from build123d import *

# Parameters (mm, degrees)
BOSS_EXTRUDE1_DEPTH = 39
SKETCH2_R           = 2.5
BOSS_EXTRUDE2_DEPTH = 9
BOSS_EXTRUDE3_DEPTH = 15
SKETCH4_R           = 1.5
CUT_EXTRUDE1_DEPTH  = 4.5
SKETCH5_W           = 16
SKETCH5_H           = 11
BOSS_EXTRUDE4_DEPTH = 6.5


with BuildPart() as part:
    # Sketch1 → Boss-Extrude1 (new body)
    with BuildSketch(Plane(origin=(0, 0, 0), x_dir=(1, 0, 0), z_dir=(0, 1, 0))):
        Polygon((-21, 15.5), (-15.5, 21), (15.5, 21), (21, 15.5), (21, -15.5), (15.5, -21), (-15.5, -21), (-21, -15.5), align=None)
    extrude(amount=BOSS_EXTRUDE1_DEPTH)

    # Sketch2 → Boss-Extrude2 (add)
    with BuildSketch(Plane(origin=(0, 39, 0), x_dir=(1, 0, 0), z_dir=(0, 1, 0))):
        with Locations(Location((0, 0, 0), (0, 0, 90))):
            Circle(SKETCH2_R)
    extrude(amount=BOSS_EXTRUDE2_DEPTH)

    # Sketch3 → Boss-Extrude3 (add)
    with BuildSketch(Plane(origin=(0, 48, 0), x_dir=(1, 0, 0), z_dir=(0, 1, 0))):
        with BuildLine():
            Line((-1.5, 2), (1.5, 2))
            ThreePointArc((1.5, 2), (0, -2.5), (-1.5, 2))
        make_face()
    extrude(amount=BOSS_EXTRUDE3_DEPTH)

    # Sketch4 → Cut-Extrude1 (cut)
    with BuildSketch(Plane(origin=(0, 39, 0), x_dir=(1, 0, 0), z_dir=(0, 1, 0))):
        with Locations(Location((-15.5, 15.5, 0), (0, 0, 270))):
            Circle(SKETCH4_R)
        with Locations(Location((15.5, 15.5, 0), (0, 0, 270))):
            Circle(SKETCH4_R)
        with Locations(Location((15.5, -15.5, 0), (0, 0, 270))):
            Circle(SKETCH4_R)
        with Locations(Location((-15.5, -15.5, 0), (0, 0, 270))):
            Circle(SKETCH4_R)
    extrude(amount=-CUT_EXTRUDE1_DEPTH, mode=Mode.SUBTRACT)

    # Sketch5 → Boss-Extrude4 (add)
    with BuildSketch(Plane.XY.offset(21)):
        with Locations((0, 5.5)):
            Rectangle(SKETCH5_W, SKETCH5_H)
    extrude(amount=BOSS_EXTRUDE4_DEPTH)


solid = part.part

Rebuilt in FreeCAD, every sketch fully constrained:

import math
import FreeCAD as App
import Part
import Sketcher

V = App.Vector
Q = App.Units.Quantity

doc = App.newDocument("Part")
body = doc.addObject("PartDesign::Body", "Body")

# Sketch on XZ plane
sketch1 = body.newObject("Sketcher::SketchObject", "Sketch")
sketch1.AttachmentSupport = (doc.getObject("XZ_Plane"), [""])
sketch1.MapMode = "FlatFace"
sketch1.addGeometry(Part.LineSegment(V(-15.5, -21, 0), V(-21, -15.5, 0)), False)
sketch1.addGeometry(Part.LineSegment(V(-21, -15.5, 0), V(-21, 15.5, 0)), False)
sketch1.addGeometry(Part.LineSegment(V(-21, 15.5, 0), V(-15.5, 21, 0)), False)
sketch1.addGeometry(Part.LineSegment(V(-15.5, 21, 0), V(15.5, 21, 0)), False)
sketch1.addGeometry(Part.LineSegment(V(15.5, 21, 0), V(21, 15.5, 0)), False)
sketch1.addGeometry(Part.LineSegment(V(21, 15.5, 0), V(21, -15.5, 0)), False)
sketch1.addGeometry(Part.LineSegment(V(21, -15.5, 0), V(15.5, -21, 0)), False)
sketch1.addGeometry(Part.LineSegment(V(15.5, -21, 0), V(-15.5, -21, 0)), False)
sketch1.addConstraint(Sketcher.Constraint("Coincident", 0, 2, 1, 1))
sketch1.addConstraint(Sketcher.Constraint("Coincident", 1, 2, 2, 1))
sketch1.addConstraint(Sketcher.Constraint("Coincident", 2, 2, 3, 1))
sketch1.addConstraint(Sketcher.Constraint("Coincident", 3, 2, 4, 1))
sketch1.addConstraint(Sketcher.Constraint("Coincident", 4, 2, 5, 1))
sketch1.addConstraint(Sketcher.Constraint("Coincident", 5, 2, 6, 1))
sketch1.addConstraint(Sketcher.Constraint("Coincident", 6, 2, 7, 1))
sketch1.addConstraint(Sketcher.Constraint("Coincident", 7, 2, 0, 1))
sketch1.addConstraint(Sketcher.Constraint("Vertical", 1))
sketch1.addConstraint(Sketcher.Constraint("Horizontal", 3))
sketch1.addConstraint(Sketcher.Constraint("Vertical", 5))
sketch1.addConstraint(Sketcher.Constraint("Horizontal", 7))
sketch1.addConstraint(Sketcher.Constraint("Symmetric", 0, 2, 4, 2, -1, 1))
sketch1.addConstraint(Sketcher.Constraint("Symmetric", 2, 2, 6, 2, -1, 1))
sketch1.addConstraint(Sketcher.Constraint("Perpendicular", 0, 2))
sketch1.addConstraint(Sketcher.Constraint("Perpendicular", 2, 4))
sketch1.addConstraint(Sketcher.Constraint("Perpendicular", 4, 6))
sketch1.addConstraint(Sketcher.Constraint("Horizontal", 1, 2, 4, 2))
sketch1.addConstraint(Sketcher.Constraint("Vertical", 3, 2, 6, 2))
sketch1.addConstraint(Sketcher.Constraint("Equal", 7, 1))
sketch1.addConstraint(Sketcher.Constraint("DistanceX", 3, 1, 3, 2, Q("31 mm")))
sketch1.addConstraint(Sketcher.Constraint("DistanceX", 0, 2, -1, 1, Q("21 mm")))
pad1 = body.newObject("PartDesign::Pad", "Pad")
pad1.Profile = sketch1
pad1.Length = 39
pad1.Reversed = True

# Sketch on XZ plane
sketch2 = body.newObject("Sketcher::SketchObject", "Sketch001")
sketch2.AttachmentSupport = (doc.getObject("XZ_Plane"), [""])
sketch2.MapMode = "FlatFace"
sketch2.AttachmentOffset = App.Placement(V(0, 0, -39), App.Rotation())
sketch2.addGeometry(Part.Circle(V(0, 0, 0), V(0, 0, 1), 2.5), False)
sketch2.addConstraint(Sketcher.Constraint("Coincident", 0, 3, -1, 1))
sketch2.addConstraint(Sketcher.Constraint("Diameter", 0, Q("5 mm")))
pad2 = body.newObject("PartDesign::Pad", "Pad001")
pad2.Profile = sketch2
pad2.Length = 9
pad2.Reversed = True

# Sketch on XZ plane
sketch3 = body.newObject("Sketcher::SketchObject", "Sketch002")
sketch3.AttachmentSupport = (doc.getObject("XZ_Plane"), [""])
sketch3.MapMode = "FlatFace"
sketch3.AttachmentOffset = App.Placement(V(0, 0, -48), App.Rotation())
sketch3.addGeometry(Part.LineSegment(V(1.5, -2, 0), V(-1.5, -2, 0)), False)
sketch3.addGeometry(Part.ArcOfCircle(Part.Circle(V(0, 0, 0), V(0, 0, 1), 2.5), math.radians(-53.130102), math.radians(233.130102)), False)
sketch3.addConstraint(Sketcher.Constraint("Coincident", 0, 1, 1, 1))
sketch3.addConstraint(Sketcher.Constraint("Coincident", 1, 2, 0, 2))
sketch3.addConstraint(Sketcher.Constraint("Horizontal", 0))
sketch3.addConstraint(Sketcher.Constraint("Coincident", 1, 3, -1, 1))
sketch3.addConstraint(Sketcher.Constraint("Radius", 1, Q("2.5 mm")))
sketch3.addConstraint(Sketcher.Constraint("DistanceX", 0, 2, 0, 1, Q("3 mm")))
pad3 = body.newObject("PartDesign::Pad", "Pad002")
pad3.Profile = sketch3
pad3.Length = 15
pad3.Reversed = True

# Sketch on XZ plane
sketch4 = body.newObject("Sketcher::SketchObject", "Sketch003")
sketch4.AttachmentSupport = (doc.getObject("XZ_Plane"), [""])
sketch4.MapMode = "FlatFace"
sketch4.AttachmentOffset = App.Placement(V(0, 0, -39), App.Rotation())
sketch4.addGeometry(Part.Circle(V(-15.5, -15.5, 0), V(0, 0, 1), 1.5), False)
sketch4.addGeometry(Part.Circle(V(15.5, -15.5, 0), V(0, 0, 1), 1.5), False)
sketch4.addGeometry(Part.Circle(V(15.5, 15.5, 0), V(0, 0, 1), 1.5), False)
sketch4.addGeometry(Part.Circle(V(-15.5, 15.5, 0), V(0, 0, 1), 1.5), False)
sketch4.addConstraint(Sketcher.Constraint("Equal", 0, 1))
sketch4.addConstraint(Sketcher.Constraint("Equal", 1, 2))
sketch4.addConstraint(Sketcher.Constraint("Equal", 2, 3))
sketch4.addConstraint(Sketcher.Constraint("Symmetric", 0, 3, 2, 3, -1, 1))
sketch4.addConstraint(Sketcher.Constraint("Symmetric", 1, 3, 3, 3, -1, 1))
sketch4.addConstraint(Sketcher.Constraint("Symmetric", 0, 3, 1, 3, -2))
sketch4.addConstraint(Sketcher.Constraint("Diameter", 0, Q("3 mm")))
sketch4.addConstraint(Sketcher.Constraint("DistanceX", 0, 3, 1, 3, Q("31 mm")))
sketch4.addConstraint(Sketcher.Constraint("DistanceY", 1, 3, 2, 3, Q("31 mm")))
pocket1 = body.newObject("PartDesign::Pocket", "Pocket")
pocket1.Profile = sketch4
pocket1.Length = 4.5
pocket1.Reversed = True

# Sketch on XY plane
sketch5 = body.newObject("Sketcher::SketchObject", "Sketch004")
sketch5.AttachmentSupport = (doc.getObject("XY_Plane"), [""])
sketch5.MapMode = "FlatFace"
sketch5.AttachmentOffset = App.Placement(V(0, 0, 21), App.Rotation())
sketch5.addGeometry(Part.LineSegment(V(-8, 11, 0), V(-8, 0, 0)), False)
sketch5.addGeometry(Part.LineSegment(V(-8, 0, 0), V(8, 0, 0)), False)
sketch5.addGeometry(Part.LineSegment(V(8, 0, 0), V(8, 11, 0)), False)
sketch5.addGeometry(Part.LineSegment(V(8, 11, 0), V(-8, 11, 0)), False)
sketch5.addConstraint(Sketcher.Constraint("Coincident", 0, 2, 1, 1))
sketch5.addConstraint(Sketcher.Constraint("Coincident", 1, 2, 2, 1))
sketch5.addConstraint(Sketcher.Constraint("Coincident", 2, 2, 3, 1))
sketch5.addConstraint(Sketcher.Constraint("Coincident", 3, 2, 0, 1))
sketch5.addConstraint(Sketcher.Constraint("Vertical", 0))
sketch5.addConstraint(Sketcher.Constraint("Horizontal", 1))
sketch5.addConstraint(Sketcher.Constraint("Vertical", 2))
sketch5.addConstraint(Sketcher.Constraint("Horizontal", 3))
sketch5.addConstraint(Sketcher.Constraint("Symmetric", 0, 2, 1, 2, -1, 1))
sketch5.addConstraint(Sketcher.Constraint("DistanceX", 1, 1, 1, 2, Q("16 mm")))
sketch5.addConstraint(Sketcher.Constraint("DistanceY", 0, 2, 0, 1, Q("11 mm")))
pad4 = body.newObject("PartDesign::Pad", "Pad003")
pad4.Profile = sketch5
pad4.Length = 6.5

doc.recompute()
